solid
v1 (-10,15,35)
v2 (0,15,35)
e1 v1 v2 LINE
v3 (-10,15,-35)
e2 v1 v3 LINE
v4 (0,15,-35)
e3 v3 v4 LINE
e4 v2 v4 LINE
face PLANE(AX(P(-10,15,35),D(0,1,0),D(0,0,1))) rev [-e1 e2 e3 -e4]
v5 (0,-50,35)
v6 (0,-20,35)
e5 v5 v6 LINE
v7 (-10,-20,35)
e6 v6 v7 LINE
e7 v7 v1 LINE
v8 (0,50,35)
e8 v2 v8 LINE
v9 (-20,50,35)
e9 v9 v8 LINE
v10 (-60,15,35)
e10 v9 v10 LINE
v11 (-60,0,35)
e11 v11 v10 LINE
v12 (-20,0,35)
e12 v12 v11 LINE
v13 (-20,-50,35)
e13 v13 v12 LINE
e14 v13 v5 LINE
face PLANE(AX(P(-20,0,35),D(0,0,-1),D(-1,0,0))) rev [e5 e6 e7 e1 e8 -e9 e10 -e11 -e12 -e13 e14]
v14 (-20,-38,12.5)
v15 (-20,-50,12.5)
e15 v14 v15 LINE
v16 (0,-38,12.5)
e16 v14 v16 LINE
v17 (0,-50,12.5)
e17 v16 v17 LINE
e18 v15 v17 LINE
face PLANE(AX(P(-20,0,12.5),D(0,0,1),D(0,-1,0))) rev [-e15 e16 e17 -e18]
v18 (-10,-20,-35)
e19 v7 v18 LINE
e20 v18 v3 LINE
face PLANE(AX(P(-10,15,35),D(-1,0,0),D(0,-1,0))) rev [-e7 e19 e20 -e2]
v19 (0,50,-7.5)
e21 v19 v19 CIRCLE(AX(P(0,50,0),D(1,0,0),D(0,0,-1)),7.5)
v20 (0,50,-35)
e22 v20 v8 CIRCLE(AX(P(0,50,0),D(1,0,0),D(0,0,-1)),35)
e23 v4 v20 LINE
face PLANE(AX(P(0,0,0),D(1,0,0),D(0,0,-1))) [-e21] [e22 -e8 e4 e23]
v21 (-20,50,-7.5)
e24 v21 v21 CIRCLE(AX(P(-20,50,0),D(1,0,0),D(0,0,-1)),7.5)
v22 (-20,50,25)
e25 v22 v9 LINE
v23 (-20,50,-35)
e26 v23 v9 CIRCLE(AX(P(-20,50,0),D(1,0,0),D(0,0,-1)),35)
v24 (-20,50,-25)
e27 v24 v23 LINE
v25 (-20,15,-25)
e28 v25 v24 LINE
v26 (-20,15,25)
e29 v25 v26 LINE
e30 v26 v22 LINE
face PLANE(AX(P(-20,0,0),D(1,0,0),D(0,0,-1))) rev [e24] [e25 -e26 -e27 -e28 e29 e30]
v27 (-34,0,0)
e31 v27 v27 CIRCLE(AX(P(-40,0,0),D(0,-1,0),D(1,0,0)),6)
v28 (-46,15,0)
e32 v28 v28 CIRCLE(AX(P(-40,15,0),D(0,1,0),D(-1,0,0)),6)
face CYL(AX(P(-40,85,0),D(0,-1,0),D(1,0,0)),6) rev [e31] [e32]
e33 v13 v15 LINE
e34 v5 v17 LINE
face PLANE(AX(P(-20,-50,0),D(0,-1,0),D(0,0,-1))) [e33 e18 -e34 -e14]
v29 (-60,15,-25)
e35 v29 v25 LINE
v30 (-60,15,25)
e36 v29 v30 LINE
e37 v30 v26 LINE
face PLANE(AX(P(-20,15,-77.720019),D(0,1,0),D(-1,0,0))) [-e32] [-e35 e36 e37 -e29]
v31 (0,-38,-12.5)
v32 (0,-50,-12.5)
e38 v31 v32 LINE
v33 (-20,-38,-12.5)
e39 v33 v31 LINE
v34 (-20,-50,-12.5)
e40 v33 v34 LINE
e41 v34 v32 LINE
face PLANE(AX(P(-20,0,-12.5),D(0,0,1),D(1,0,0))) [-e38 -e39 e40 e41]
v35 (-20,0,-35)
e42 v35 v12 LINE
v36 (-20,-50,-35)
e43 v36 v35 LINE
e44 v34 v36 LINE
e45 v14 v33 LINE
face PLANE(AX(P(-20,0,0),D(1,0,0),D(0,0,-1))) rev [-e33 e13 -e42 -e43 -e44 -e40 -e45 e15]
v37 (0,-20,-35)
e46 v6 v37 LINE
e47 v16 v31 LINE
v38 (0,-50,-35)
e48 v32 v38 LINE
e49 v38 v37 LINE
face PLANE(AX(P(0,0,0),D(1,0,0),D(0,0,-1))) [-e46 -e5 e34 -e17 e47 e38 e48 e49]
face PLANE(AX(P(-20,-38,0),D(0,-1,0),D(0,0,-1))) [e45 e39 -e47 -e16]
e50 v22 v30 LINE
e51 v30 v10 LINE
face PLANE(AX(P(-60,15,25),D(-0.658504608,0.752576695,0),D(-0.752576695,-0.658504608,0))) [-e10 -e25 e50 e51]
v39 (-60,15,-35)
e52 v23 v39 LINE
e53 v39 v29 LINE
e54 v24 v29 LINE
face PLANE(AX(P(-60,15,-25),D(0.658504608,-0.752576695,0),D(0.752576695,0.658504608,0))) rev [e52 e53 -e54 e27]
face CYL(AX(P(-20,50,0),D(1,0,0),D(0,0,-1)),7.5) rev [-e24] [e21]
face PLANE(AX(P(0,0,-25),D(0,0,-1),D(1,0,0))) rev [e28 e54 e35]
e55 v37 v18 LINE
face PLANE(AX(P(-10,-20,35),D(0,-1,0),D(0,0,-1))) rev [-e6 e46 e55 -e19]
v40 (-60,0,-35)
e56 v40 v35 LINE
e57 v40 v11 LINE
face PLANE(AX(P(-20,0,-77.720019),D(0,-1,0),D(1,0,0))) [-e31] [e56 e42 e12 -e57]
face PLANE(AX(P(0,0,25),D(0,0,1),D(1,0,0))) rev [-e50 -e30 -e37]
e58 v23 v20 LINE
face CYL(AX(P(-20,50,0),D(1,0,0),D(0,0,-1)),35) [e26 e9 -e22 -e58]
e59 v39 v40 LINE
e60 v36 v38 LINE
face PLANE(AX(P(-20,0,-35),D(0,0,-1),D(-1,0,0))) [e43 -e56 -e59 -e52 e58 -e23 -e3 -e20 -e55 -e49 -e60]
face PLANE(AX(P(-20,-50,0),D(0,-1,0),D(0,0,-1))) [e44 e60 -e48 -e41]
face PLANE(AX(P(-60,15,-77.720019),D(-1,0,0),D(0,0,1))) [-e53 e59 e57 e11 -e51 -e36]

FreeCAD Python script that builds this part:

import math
import FreeCAD as App
import Part
import Sketcher
from FreeCAD import Vector

doc = App.newDocument("Part")
body = doc.addObject("PartDesign::Body", "Body")

# Sketch on YZ plane
sketch1 = doc.addObject("Sketcher::SketchObject", "Sketch")
body.addObject(sketch1)
sketch1.AttachmentSupport = (doc.YZ_Plane, [""])
sketch1.MapMode = "FlatFace"
sketch1.addGeometry([
    Part.ArcOfCircle(Part.Circle(Vector(50, 0, 0), Vector(0, 0, 1), 35), math.radians(-90), math.radians(90)),  # 0
    Part.LineSegment(Vector(50, 35, 0), Vector(-50, 35, 0)),  # 1
    Part.LineSegment(Vector(-50, 35, 0), Vector(-50, 12, 0)),  # 2
    Part.LineSegment(Vector(-50, 12, 0), Vector(-38, 12, 0)),  # 3
    Part.LineSegment(Vector(-38, 12, 0), Vector(-38, -12, 0)),  # 4
    Part.LineSegment(Vector(-38, -12, 0), Vector(-50, -12, 0)),  # 5
    Part.LineSegment(Vector(-50, -12, 0), Vector(-50, -35, 0)),  # 6
    Part.LineSegment(Vector(-50, -35, 0), Vector(50, -35, 0)),  # 7
    Part.Circle(Vector(50, 0, 0), Vector(0, 0, 1), 8),  # 8
], False)
sketch1.addConstraint([
    Sketcher.Constraint("Tangent", 0, 2, 1, 1),
    Sketcher.Constraint("Coincident", 1, 2, 2, 1),
    Sketcher.Constraint("Coincident", 2, 2, 3, 1),
    Sketcher.Constraint("Coincident", 3, 2, 4, 1),
    Sketcher.Constraint("Coincident", 4, 2, 5, 1),
    Sketcher.Constraint("Coincident", 5, 2, 6, 1),
    Sketcher.Constraint("Coincident", 6, 2, 7, 1),
    Sketcher.Constraint("Tangent", 7, 2, 0, 1),
    Sketcher.Constraint("Horizontal", 1),
    Sketcher.Constraint("Vertical", 2),
    Sketcher.Constraint("Horizontal", 3),
    Sketcher.Constraint("Vertical", 4),
    Sketcher.Constraint("Horizontal", 5),
    Sketcher.Constraint("Vertical", 6),
    Sketcher.Constraint("Horizontal", 7),
    Sketcher.Constraint("Coincident", 8, 3, 0, 3),
    Sketcher.Constraint("Symmetric", 0, 2, 6, 2, -1, 1),
    Sketcher.Constraint("Symmetric", 2, 2, 5, 2, -1),
    Sketcher.Constraint("Diameter", 8, 15.0),
    Sketcher.Constraint("Radius", 0, 35.0),
    Sketcher.Constraint("DistanceX", 1, 2, 1, 1, 100.0),
    Sketcher.Constraint("DistanceX", 3, 1, 3, 2, 12.0),
    Sketcher.Constraint("DistanceY", 4, 2, 4, 1, 25.0),
])
pad1 = doc.addObject("PartDesign::Pad", "Pad")
body.addObject(pad1)
pad1.Profile = sketch1
pad1.Length = 20
pad1.Reversed = True

# Sketch on XY plane
sketch2 = doc.addObject("Sketcher::SketchObject", "Sketch001")
body.addObject(sketch2)
sketch2.AttachmentSupport = (doc.XY_Plane, [""])
sketch2.MapMode = "FlatFace"
sketch2.AttachmentOffset = App.Placement(Vector(0, 0, -35), App.Rotation())
sketch2.addGeometry([
    Part.LineSegment(Vector(0, 15, 0), Vector(0, -20, 0)),
    Part.LineSegment(Vector(0, -20, 0), Vector(-10, -20, 0)),
    Part.LineSegment(Vector(-10, -20, 0), Vector(-10, 15, 0)),
    Part.LineSegment(Vector(-10, 15, 0), Vector(0, 15, 0)),
], False)
sketch2.addConstraint([
    Sketcher.Constraint("Coincident", 0, 2, 1, 1),
    Sketcher.Constraint("Coincident", 1, 2, 2, 1),
    Sketcher.Constraint("Coincident", 2, 2, 3, 1),
    Sketcher.Constraint("Coincident", 3, 2, 0, 1),
    Sketcher.Constraint("Vertical", 0),
    Sketcher.Constraint("Horizontal", 1),
    Sketcher.Constraint("Vertical", 2),
    Sketcher.Constraint("Horizontal", 3),
    Sketcher.Constraint("PointOnObject", 0, 2, -2),
    Sketcher.Constraint("DistanceX", 1, 2, 1, 1, 10.0),
    Sketcher.Constraint("DistanceY", 0, 2, 0, 1, 35.0),
    Sketcher.Constraint("DistanceY", 0, 2, -1, 1, 20.0),
])
pocket1 = doc.addObject("PartDesign::Pocket", "Pocket")
body.addObject(pocket1)
pocket1.Profile = sketch2
pocket1.Type = "ThroughAll"
pocket1.Reversed = True

# Sketch on XY plane
sketch3 = doc.addObject("Sketcher::SketchObject", "Sketch002")
body.addObject(sketch3)
sketch3.AttachmentSupport = (doc.XY_Plane, [""])
sketch3.MapMode = "FlatFace"
sketch3.AttachmentOffset = App.Placement(Vector(0, 0, -35), App.Rotation())
sketch3.addGeometry([
    Part.LineSegment(Vector(-60, 15, 0), Vector(-60, 0, 0)),
    Part.LineSegment(Vector(-60, 0, 0), Vector(-20, 0, 0)),
    Part.LineSegment(Vector(-20, 0, 0), Vector(-20, 15, 0)),
    Part.LineSegment(Vector(-20, 15, 0), Vector(-60, 15, 0)),
], False)
sketch3.addConstraint([
    Sketcher.Constraint("Coincident", 0, 2, 1, 1),
    Sketcher.Constraint("Coincident", 1, 2, 2, 1),
    Sketcher.Constraint("Coincident", 2, 2, 3, 1),
    Sketcher.Constraint("Coincident", 3, 2, 0, 1),
    Sketcher.Constraint("Vertical", 0),
    Sketcher.Constraint("Horizontal", 1),
    Sketcher.Constraint("Vertical", 2),
    Sketcher.Constraint("Horizontal", 3),
    Sketcher.Constraint("PointOnObject", 0, 2, -1),
    Sketcher.Constraint("DistanceX", 1, 1, 1, 2, 40.0),
    Sketcher.Constraint("DistanceY", 0, 2, 0, 1, 15.0),
    Sketcher.Constraint("DistanceX", 0, 2, -1, 1, 60.0),
])
pad2 = doc.addObject("PartDesign::Pad", "Pad001")
body.addObject(pad2)
pad2.Profile = sketch3
pad2.Length = 70

# Sketch on XZ plane
sketch4 = doc.addObject("Sketcher::SketchObject", "Sketch003")
body.addObject(sketch4)
sketch4.AttachmentSupport = (doc.XZ_Plane, [""])
sketch4.MapMode = "FlatFace"
sketch4.addGeometry(Part.Circle(Vector(-40, 0, 0), Vector(0, 0, 1), 6), False)
sketch4.addConstraint([
    Sketcher.Constraint("PointOnObject", 0, 3, -1),
    Sketcher.Constraint("Diameter", 0, 12.0),
    Sketcher.Constraint("DistanceX", 0, 3, -1, 1, 40.0),
])
pocket2 = doc.addObject("PartDesign::Pocket", "Pocket001")
body.addObject(pocket2)
pocket2.Profile = sketch4
pocket2.Type = "ThroughAll"

# Sketch on XY plane
sketch5 = doc.addObject("Sketcher::SketchObject", "Sketch004")
body.addObject(sketch5)
sketch5.AttachmentSupport = (doc.XY_Plane, [""])
sketch5.MapMode = "FlatFace"
sketch5.AttachmentOffset = App.Placement(Vector(0, 0, 35), App.Rotation())
sketch5.addGeometry([
    Part.LineSegment(Vector(-20, 50, 0), Vector(-60, 15, 0)),
    Part.LineSegment(Vector(-60, 15, 0), Vector(-20, 15, 0)),
    Part.LineSegment(Vector(-20, 15, 0), Vector(-20, 50, 0)),
], False)
sketch5.addConstraint([
    Sketcher.Constraint("Coincident", 0, 2, 1, 1),
    Sketcher.Constraint("Coincident", 1, 2, 2, 1),
    Sketcher.Constraint("Coincident", 2, 2, 0, 1),
    Sketcher.Constraint("Horizontal", 1),
    Sketcher.Constraint("Vertical", 2),
    Sketcher.Constraint("DistanceX", 1, 1, 1, 2, 40.0),
    Sketcher.Constraint("DistanceY", 2, 1, 2, 2, 35.0),
    Sketcher.Constraint("DistanceX", 0, 2, -1, 1, 60.0),
    Sketcher.Constraint("DistanceY", -1, 1, 0, 2, 15.0),
])
pad3 = doc.addObject("PartDesign::Pad", "Pad002")
body.addObject(pad3)
pad3.Profile = sketch5
pad3.Length = 10
pad3.Reversed = True
doc.recompute()

mirrored = doc.addObject("PartDesign::Mirrored", "Mirrored")
body.addObject(mirrored)
mirrored.Originals = [pad3]
mirrored.MirrorPlane = (doc.XY_Plane, [""])
body.Tip = mirrored

doc.recompute()
